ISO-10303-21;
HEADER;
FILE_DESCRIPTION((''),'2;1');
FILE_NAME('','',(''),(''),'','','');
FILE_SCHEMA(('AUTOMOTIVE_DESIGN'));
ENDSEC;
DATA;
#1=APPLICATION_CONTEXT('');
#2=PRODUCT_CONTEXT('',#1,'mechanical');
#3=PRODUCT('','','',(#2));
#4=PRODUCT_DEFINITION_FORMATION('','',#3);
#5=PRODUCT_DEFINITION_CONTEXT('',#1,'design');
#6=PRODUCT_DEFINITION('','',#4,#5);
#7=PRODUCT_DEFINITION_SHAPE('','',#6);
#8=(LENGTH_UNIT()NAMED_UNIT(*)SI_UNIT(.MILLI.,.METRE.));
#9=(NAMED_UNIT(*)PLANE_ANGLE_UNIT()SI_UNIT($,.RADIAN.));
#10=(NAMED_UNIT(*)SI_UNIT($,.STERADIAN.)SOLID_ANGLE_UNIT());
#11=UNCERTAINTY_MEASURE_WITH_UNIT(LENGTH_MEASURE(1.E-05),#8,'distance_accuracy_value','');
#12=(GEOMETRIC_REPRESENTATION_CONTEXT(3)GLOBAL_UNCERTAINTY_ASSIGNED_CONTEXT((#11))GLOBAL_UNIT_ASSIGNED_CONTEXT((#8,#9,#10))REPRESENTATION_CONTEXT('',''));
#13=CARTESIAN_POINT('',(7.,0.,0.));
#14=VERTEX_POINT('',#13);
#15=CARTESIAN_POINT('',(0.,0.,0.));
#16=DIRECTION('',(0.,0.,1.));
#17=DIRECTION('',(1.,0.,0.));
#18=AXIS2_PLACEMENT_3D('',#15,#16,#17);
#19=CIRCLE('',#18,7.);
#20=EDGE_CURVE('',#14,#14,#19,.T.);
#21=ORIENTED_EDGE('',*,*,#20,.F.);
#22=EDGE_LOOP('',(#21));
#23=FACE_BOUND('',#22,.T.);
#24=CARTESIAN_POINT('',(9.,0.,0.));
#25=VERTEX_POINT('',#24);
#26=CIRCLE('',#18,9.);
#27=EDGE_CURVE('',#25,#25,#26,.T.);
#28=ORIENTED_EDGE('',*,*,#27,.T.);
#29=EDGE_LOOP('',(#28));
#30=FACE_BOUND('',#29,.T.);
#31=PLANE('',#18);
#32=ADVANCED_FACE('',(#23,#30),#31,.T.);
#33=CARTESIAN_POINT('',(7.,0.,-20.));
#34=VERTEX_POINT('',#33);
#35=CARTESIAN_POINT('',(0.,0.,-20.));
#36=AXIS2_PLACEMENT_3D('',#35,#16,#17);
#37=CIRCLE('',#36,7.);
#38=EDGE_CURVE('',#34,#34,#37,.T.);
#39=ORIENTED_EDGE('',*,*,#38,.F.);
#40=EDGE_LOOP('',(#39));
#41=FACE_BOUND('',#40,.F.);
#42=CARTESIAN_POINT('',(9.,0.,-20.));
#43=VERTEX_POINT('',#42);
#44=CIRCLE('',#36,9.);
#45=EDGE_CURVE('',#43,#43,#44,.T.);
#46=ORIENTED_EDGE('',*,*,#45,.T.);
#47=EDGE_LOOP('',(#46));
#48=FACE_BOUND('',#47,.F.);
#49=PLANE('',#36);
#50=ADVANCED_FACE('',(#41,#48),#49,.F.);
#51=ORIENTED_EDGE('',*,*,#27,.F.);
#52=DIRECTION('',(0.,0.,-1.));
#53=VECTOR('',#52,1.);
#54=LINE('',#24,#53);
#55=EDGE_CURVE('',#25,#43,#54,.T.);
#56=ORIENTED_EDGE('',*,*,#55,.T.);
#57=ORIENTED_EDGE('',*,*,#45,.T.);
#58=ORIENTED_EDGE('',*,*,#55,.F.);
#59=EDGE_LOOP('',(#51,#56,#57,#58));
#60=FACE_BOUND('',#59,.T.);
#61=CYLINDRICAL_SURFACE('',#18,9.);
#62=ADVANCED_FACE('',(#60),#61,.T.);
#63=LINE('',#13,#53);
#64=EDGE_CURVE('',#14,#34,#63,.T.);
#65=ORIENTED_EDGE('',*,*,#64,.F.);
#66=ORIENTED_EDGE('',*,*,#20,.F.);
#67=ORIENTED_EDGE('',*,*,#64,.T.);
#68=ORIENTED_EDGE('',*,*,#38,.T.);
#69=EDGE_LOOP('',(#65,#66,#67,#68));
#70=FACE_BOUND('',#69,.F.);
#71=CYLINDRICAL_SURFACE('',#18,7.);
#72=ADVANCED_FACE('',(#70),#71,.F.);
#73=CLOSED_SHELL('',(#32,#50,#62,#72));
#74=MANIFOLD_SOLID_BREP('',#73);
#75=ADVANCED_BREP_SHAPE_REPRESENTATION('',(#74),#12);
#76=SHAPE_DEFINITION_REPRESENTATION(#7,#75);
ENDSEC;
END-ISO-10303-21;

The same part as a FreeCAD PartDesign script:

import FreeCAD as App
import Part
import Sketcher
from FreeCAD import Vector
Q = App.Units.Quantity

doc = App.newDocument("Part")
body = doc.addObject("PartDesign::Body", "Body")

# Sketch on XY plane
sketch1 = body.newObject("Sketcher::SketchObject", "Sketch")
sketch1.AttachmentSupport = (doc.getObject("XY_Plane"), [""])
sketch1.MapMode = "FlatFace"
sketch1.addGeometry(Part.Circle(Vector(0, 0, 0), Vector(0, 0, 1), 9), False)
sketch1.addGeometry(Part.Circle(Vector(0, 0, 0), Vector(0, 0, 1), 7), False)
sketch1.addConstraint(Sketcher.Constraint("Coincident", 0, 3, -1, 1))
sketch1.addConstraint(Sketcher.Constraint("Coincident", 1, 3, -1, 1))
sketch1.addConstraint(Sketcher.Constraint("Diameter", 0, Q("18 mm")))
sketch1.addConstraint(Sketcher.Constraint("Diameter", 1, Q("14 mm")))
pad1 = body.newObject("PartDesign::Pad", "Pad")
pad1.Profile = sketch1
pad1.Length = 20
pad1.Reversed = True

doc.recompute()
